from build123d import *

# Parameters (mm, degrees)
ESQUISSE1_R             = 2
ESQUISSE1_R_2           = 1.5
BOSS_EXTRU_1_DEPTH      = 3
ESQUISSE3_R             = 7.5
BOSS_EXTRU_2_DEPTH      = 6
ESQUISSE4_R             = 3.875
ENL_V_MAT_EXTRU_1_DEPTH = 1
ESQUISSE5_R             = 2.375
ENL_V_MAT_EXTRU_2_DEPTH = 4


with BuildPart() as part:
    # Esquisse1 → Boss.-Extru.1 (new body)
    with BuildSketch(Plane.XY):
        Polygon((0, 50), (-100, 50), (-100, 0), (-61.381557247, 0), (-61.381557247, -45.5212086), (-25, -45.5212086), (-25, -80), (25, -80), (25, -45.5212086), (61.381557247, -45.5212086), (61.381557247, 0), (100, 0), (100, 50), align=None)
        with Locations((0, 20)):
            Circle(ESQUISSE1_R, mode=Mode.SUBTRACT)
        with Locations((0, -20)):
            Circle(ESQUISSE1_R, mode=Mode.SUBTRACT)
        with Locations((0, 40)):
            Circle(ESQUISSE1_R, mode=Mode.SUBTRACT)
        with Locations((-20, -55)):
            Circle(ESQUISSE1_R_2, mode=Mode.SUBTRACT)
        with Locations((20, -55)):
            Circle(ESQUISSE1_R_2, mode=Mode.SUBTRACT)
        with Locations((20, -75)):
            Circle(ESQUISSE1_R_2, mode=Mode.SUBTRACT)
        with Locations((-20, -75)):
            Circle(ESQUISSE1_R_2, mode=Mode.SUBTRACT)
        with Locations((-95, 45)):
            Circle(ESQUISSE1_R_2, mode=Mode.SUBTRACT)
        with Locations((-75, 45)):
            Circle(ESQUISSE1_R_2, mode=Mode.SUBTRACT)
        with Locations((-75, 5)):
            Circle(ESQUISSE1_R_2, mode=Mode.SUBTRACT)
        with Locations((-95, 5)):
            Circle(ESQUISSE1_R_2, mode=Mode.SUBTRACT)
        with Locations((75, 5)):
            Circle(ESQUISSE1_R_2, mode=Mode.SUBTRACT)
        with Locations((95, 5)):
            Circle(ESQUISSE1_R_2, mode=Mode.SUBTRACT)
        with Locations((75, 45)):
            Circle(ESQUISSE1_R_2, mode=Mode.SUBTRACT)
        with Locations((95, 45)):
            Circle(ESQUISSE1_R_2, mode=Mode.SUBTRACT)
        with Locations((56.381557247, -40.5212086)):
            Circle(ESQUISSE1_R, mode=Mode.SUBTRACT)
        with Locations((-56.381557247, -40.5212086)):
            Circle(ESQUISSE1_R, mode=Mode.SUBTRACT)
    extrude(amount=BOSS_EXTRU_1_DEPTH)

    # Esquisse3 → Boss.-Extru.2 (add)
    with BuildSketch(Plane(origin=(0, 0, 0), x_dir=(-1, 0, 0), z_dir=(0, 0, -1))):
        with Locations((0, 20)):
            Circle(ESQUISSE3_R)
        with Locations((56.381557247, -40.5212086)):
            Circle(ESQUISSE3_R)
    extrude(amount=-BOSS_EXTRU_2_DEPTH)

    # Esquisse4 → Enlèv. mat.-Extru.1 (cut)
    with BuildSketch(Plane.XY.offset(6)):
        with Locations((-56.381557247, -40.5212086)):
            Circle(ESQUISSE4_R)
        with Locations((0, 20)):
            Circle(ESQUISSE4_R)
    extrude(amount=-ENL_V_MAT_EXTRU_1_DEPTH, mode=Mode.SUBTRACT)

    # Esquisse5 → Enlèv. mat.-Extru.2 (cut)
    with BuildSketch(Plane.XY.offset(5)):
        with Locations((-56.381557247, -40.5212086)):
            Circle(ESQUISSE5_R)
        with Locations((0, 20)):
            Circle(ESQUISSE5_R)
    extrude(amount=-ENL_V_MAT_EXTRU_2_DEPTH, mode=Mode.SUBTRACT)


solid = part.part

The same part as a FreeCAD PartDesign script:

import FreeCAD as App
import Part
import Sketcher
Q = App.Units.Quantity


def add_polygon(sketch, points):
    """Adds a closed chain of lines whose ends are joined by coincident constraints."""
    first, n = sketch.GeometryCount, len(points)
    for a, b in zip(points, points[1:] + points[:1]):
        sketch.addGeometry(Part.LineSegment(App.Vector(*a, 0), App.Vector(*b, 0)), False)
    for i in range(n):
        sketch.addConstraint(Sketcher.Constraint("Coincident", first + i, 2, first + (i + 1) % n, 1))

doc = App.newDocument("Part")
body = doc.addObject("PartDesign::Body", "Body")

sketch1 = body.newObject("Sketcher::SketchObject", "Sketch")
sketch1.AttachmentSupport = (doc.getObject("XY_Plane"), [""])
sketch1.MapMode = "FlatFace"
add_polygon(sketch1, [(-100, 50), (-100, 0), (-61.4, 0), (-61.4, -45.5), (-25, -45.5), (-25, -80), (25, -80), (25, -45.5), (61.4, -45.5), (61.4, 0), (100, 0), (100, 50)])
sketch1.addGeometry(Part.Circle(App.Vector(-20, -75, 0), App.Vector(0, 0, 1), 1.5), False)
sketch1.addGeometry(Part.Circle(App.Vector(-20, -55, 0), App.Vector(0, 0, 1), 1.5), False)
sketch1.addGeometry(Part.Circle(App.Vector(-56.4, -40.5, 0), App.Vector(0, 0, 1), 2), False)
sketch1.addGeometry(Part.Circle(App.Vector(20, -75, 0), App.Vector(0, 0, 1), 1.5), False)
sketch1.addGeometry(Part.Circle(App.Vector(20, -55, 0), App.Vector(0, 0, 1), 1.5), False)
sketch1.addGeometry(Part.Circle(App.Vector(0, -20, 0), App.Vector(0, 0, 1), 2), False)
sketch1.addGeometry(Part.Circle(App.Vector(56.4, -40.5, 0), App.Vector(0, 0, 1), 2), False)
sketch1.addGeometry(Part.Circle(App.Vector(-95, 5, 0), App.Vector(0, 0, 1), 1.5), False)
sketch1.addGeometry(Part.Circle(App.Vector(-75, 5, 0), App.Vector(0, 0, 1), 1.5), False)
sketch1.addGeometry(Part.Circle(App.Vector(-95, 45, 0), App.Vector(0, 0, 1), 1.5), False)
sketch1.addGeometry(Part.Circle(App.Vector(-75, 45, 0), App.Vector(0, 0, 1), 1.5), False)
sketch1.addGeometry(Part.Circle(App.Vector(75, 5, 0), App.Vector(0, 0, 1), 1.5), False)
sketch1.addGeometry(Part.Circle(App.Vector(95, 5, 0), App.Vector(0, 0, 1), 1.5), False)
sketch1.addGeometry(Part.Circle(App.Vector(0, 20, 0), App.Vector(0, 0, 1), 2), False)
sketch1.addGeometry(Part.Circle(App.Vector(0, 40, 0), App.Vector(0, 0, 1), 2), False)
sketch1.addGeometry(Part.Circle(App.Vector(75, 45, 0), App.Vector(0, 0, 1), 1.5), False)
sketch1.addGeometry(Part.Circle(App.Vector(95, 45, 0), App.Vector(0, 0, 1), 1.5), False)
sketch1.addConstraint([
    Sketcher.Constraint("Vertical", 0),
    Sketcher.Constraint("Horizontal", 1),
    Sketcher.Constraint("Vertical", 2),
    Sketcher.Constraint("Horizontal", 3),
    Sketcher.Constraint("Vertical", 4),
    Sketcher.Constraint("Horizontal", 5),
    Sketcher.Constraint("Vertical", 6),
    Sketcher.Constraint("Horizontal", 7),
    Sketcher.Constraint("Vertical", 8),
    Sketcher.Constraint("Horizontal", 9),
    Sketcher.Constraint("Vertical", 10),
    Sketcher.Constraint("Horizontal", 11),
    Sketcher.Constraint("Equal", 12, 13),
    Sketcher.Constraint("Equal", 13, 15),
    Sketcher.Constraint("Equal", 15, 16),
    Sketcher.Constraint("Equal", 14, 17),
    Sketcher.Constraint("Equal", 17, 18),
    Sketcher.Constraint("Equal", 16, 19),
    Sketcher.Constraint("Equal", 19, 20),
    Sketcher.Constraint("Equal", 20, 21),
    Sketcher.Constraint("Equal", 21, 22),
    Sketcher.Constraint("Equal", 22, 23),
    Sketcher.Constraint("Equal", 23, 24),
    Sketcher.Constraint("Equal", 18, 25),
    Sketcher.Constraint("Equal", 25, 26),
    Sketcher.Constraint("Equal", 24, 27),
    Sketcher.Constraint("Equal", 27, 28),
    Sketcher.Constraint("Symmetric", 17, 3, 25, 3, -1, 1),
    Sketcher.Constraint("Symmetric", 1, 2, 8, 2, -1, 1),
    Sketcher.Constraint("Symmetric", 12, 3, 15, 3, -2),
    Sketcher.Constraint("Symmetric", 13, 3, 16, 3, -2),
    Sketcher.Constraint("Symmetric", 14, 3, 18, 3, -2),
    Sketcher.Constraint("Symmetric", 20, 3, 23, 3, -2),
    Sketcher.Constraint("Symmetric", 19, 3, 24, 3, -2),
    Sketcher.Constraint("Symmetric", 22, 3, 27, 3, -2),
    Sketcher.Constraint("Symmetric", 21, 3, 28, 3, -2),
    Sketcher.Constraint("Symmetric", 3, 2, 6, 2, -2),
    Sketcher.Constraint("Symmetric", 0, 2, 9, 2, -2),
    Sketcher.Constraint("PointOnObject", 17, 3, -2),
    Sketcher.Constraint("PointOnObject", 26, 3, -2),
    Sketcher.Constraint("Horizontal", 19, 3, 20, 3),
    Sketcher.Constraint("Horizontal", 21, 3, 22, 3),
    Sketcher.Constraint("Vertical", 12, 3, 13, 3),
    Sketcher.Constraint("Vertical", 19, 3, 21, 3),
    Sketcher.Constraint("Vertical", 20, 3, 22, 3),
    Sketcher.Constraint("Equal", 5, 0),
    Sketcher.Constraint("Diameter", 12, Q("3 mm")),
    Sketcher.Constraint("Diameter", 14, Q("4 mm")),
    Sketcher.Constraint("DistanceX", 5, 1, 5, 2, Q("50 mm")),
    Sketcher.Constraint("DistanceX", 11, 2, 11, 1, Q("200 mm")),
    Sketcher.Constraint("DistanceX", 12, 3, -1, 1, Q("20 mm")),
    Sketcher.Constraint("DistanceY", 12, 3, -1, 1, Q("75 mm")),
    Sketcher.Constraint("DistanceY", 13, 3, -1, 1, Q("55 mm")),
    Sketcher.Constraint("DistanceY", 17, 3, -1, 1, Q("20 mm")),
    Sketcher.Constraint("DistanceX", 19, 3, -1, 1, Q("95 mm")),
    Sketcher.Constraint("DistanceY", -1, 1, 19, 3, Q("5 mm")),
    Sketcher.Constraint("DistanceX", 20, 3, -1, 1, Q("75 mm")),
    Sketcher.Constraint("DistanceY", -1, 1, 21, 3, Q("45 mm")),
    Sketcher.Constraint("DistanceY", -1, 1, 26, 3, Q("40 mm")),
    Sketcher.Constraint("DistanceY", 4, 2, -1, 1, Q("80 mm")),
    Sketcher.Constraint("DistanceX", 1, 2, 14, 3, Q("5 mm")),
    Sketcher.Constraint("DistanceY", 2, 2, 14, 3, Q("5 mm")),
    Sketcher.Constraint("DistanceY", 2, 2, 2, 1, Q("45.521209 mm")),
    Sketcher.Constraint("DistanceX", 1, 1, 1, 2, Q("38.618443 mm")),
])
pad1 = body.newObject("PartDesign::Pad", "Pad")
pad1.Profile = sketch1
pad1.Length = 3

sketch2 = body.newObject("Sketcher::SketchObject", "Sketch001")
sketch2.AttachmentSupport = (doc.getObject("XY_Plane"), [""])
sketch2.MapMode = "FlatFace"
sketch2.addGeometry([
    Part.Circle(App.Vector(0, 20, 0), App.Vector(0, 0, 1), 8),
    Part.Circle(App.Vector(-56, -41, 0), App.Vector(0, 0, 1), 8),
], False)
sketch2.addConstraint([
    Sketcher.Constraint("Equal", 0, 1),
    Sketcher.Constraint("PointOnObject", 0, 3, -2),
    Sketcher.Constraint("Diameter", 0, Q("15 mm")),
    Sketcher.Constraint("DistanceY", -1, 1, 0, 3, Q("20 mm")),
    Sketcher.Constraint("DistanceY", 1, 3, -1, 1, Q("40.521209 mm")),
    Sketcher.Constraint("DistanceX", 1, 3, -1, 1, Q("56.381557 mm")),
])
pad2 = body.newObject("PartDesign::Pad", "Pad001")
pad2.Profile = sketch2
pad2.Length = 6

sketch3 = body.newObject("Sketcher::SketchObject", "Sketch002")
sketch3.AttachmentSupport = (doc.getObject("XY_Plane"), [""])
sketch3.MapMode = "FlatFace"
sketch3.AttachmentOffset = App.Placement(App.Vector(0, 0, 6), App.Rotation())
sketch3.addGeometry([
    Part.Circle(App.Vector(-56.4, -40.5, 0), App.Vector(0, 0, 1), 3.9),
    Part.Circle(App.Vector(0, 20, 0), App.Vector(0, 0, 1), 3.9),
], False)
sketch3.addConstraint([
    Sketcher.Constraint("Equal", 0, 1),
    Sketcher.Constraint("PointOnObject", 1, 3, -2),
    Sketcher.Constraint("Diameter", 0, Q("7.75 mm")),
    Sketcher.Constraint("DistanceY", -1, 1, 1, 3, Q("20 mm")),
    Sketcher.Constraint("DistanceY", 0, 3, -1, 1, Q("40.521209 mm")),
    Sketcher.Constraint("DistanceX", 0, 3, -1, 1, Q("56.381557 mm")),
])
pocket1 = body.newObject("PartDesign::Pocket", "Pocket")
pocket1.Profile = sketch3
pocket1.Length = 1

sketch4 = body.newObject("Sketcher::SketchObject", "Sketch003")
sketch4.AttachmentSupport = (doc.getObject("XY_Plane"), [""])
sketch4.MapMode = "FlatFace"
sketch4.AttachmentOffset = App.Placement(App.Vector(0, 0, 5), App.Rotation())
sketch4.addGeometry([
    Part.Circle(App.Vector(-56.4, -40.5, 0), App.Vector(0, 0, 1), 2.4),
    Part.Circle(App.Vector(0, 20, 0), App.Vector(0, 0, 1), 2.4),
], False)
sketch4.addConstraint([
    Sketcher.Constraint("Equal", 0, 1),
    Sketcher.Constraint("PointOnObject", 1, 3, -2),
    Sketcher.Constraint("Diameter", 0, Q("4.75 mm")),
    Sketcher.Constraint("DistanceY", -1, 1, 1, 3, Q("20 mm")),
    Sketcher.Constraint("DistanceY", 0, 3, -1, 1, Q("40.521209 mm")),
    Sketcher.Constraint("DistanceX", 0, 3, -1, 1, Q("56.381557 mm")),
])
pocket2 = body.newObject("PartDesign::Pocket", "Pocket001")
pocket2.Profile = sketch4
pocket2.Length = 4

doc.recompute()
